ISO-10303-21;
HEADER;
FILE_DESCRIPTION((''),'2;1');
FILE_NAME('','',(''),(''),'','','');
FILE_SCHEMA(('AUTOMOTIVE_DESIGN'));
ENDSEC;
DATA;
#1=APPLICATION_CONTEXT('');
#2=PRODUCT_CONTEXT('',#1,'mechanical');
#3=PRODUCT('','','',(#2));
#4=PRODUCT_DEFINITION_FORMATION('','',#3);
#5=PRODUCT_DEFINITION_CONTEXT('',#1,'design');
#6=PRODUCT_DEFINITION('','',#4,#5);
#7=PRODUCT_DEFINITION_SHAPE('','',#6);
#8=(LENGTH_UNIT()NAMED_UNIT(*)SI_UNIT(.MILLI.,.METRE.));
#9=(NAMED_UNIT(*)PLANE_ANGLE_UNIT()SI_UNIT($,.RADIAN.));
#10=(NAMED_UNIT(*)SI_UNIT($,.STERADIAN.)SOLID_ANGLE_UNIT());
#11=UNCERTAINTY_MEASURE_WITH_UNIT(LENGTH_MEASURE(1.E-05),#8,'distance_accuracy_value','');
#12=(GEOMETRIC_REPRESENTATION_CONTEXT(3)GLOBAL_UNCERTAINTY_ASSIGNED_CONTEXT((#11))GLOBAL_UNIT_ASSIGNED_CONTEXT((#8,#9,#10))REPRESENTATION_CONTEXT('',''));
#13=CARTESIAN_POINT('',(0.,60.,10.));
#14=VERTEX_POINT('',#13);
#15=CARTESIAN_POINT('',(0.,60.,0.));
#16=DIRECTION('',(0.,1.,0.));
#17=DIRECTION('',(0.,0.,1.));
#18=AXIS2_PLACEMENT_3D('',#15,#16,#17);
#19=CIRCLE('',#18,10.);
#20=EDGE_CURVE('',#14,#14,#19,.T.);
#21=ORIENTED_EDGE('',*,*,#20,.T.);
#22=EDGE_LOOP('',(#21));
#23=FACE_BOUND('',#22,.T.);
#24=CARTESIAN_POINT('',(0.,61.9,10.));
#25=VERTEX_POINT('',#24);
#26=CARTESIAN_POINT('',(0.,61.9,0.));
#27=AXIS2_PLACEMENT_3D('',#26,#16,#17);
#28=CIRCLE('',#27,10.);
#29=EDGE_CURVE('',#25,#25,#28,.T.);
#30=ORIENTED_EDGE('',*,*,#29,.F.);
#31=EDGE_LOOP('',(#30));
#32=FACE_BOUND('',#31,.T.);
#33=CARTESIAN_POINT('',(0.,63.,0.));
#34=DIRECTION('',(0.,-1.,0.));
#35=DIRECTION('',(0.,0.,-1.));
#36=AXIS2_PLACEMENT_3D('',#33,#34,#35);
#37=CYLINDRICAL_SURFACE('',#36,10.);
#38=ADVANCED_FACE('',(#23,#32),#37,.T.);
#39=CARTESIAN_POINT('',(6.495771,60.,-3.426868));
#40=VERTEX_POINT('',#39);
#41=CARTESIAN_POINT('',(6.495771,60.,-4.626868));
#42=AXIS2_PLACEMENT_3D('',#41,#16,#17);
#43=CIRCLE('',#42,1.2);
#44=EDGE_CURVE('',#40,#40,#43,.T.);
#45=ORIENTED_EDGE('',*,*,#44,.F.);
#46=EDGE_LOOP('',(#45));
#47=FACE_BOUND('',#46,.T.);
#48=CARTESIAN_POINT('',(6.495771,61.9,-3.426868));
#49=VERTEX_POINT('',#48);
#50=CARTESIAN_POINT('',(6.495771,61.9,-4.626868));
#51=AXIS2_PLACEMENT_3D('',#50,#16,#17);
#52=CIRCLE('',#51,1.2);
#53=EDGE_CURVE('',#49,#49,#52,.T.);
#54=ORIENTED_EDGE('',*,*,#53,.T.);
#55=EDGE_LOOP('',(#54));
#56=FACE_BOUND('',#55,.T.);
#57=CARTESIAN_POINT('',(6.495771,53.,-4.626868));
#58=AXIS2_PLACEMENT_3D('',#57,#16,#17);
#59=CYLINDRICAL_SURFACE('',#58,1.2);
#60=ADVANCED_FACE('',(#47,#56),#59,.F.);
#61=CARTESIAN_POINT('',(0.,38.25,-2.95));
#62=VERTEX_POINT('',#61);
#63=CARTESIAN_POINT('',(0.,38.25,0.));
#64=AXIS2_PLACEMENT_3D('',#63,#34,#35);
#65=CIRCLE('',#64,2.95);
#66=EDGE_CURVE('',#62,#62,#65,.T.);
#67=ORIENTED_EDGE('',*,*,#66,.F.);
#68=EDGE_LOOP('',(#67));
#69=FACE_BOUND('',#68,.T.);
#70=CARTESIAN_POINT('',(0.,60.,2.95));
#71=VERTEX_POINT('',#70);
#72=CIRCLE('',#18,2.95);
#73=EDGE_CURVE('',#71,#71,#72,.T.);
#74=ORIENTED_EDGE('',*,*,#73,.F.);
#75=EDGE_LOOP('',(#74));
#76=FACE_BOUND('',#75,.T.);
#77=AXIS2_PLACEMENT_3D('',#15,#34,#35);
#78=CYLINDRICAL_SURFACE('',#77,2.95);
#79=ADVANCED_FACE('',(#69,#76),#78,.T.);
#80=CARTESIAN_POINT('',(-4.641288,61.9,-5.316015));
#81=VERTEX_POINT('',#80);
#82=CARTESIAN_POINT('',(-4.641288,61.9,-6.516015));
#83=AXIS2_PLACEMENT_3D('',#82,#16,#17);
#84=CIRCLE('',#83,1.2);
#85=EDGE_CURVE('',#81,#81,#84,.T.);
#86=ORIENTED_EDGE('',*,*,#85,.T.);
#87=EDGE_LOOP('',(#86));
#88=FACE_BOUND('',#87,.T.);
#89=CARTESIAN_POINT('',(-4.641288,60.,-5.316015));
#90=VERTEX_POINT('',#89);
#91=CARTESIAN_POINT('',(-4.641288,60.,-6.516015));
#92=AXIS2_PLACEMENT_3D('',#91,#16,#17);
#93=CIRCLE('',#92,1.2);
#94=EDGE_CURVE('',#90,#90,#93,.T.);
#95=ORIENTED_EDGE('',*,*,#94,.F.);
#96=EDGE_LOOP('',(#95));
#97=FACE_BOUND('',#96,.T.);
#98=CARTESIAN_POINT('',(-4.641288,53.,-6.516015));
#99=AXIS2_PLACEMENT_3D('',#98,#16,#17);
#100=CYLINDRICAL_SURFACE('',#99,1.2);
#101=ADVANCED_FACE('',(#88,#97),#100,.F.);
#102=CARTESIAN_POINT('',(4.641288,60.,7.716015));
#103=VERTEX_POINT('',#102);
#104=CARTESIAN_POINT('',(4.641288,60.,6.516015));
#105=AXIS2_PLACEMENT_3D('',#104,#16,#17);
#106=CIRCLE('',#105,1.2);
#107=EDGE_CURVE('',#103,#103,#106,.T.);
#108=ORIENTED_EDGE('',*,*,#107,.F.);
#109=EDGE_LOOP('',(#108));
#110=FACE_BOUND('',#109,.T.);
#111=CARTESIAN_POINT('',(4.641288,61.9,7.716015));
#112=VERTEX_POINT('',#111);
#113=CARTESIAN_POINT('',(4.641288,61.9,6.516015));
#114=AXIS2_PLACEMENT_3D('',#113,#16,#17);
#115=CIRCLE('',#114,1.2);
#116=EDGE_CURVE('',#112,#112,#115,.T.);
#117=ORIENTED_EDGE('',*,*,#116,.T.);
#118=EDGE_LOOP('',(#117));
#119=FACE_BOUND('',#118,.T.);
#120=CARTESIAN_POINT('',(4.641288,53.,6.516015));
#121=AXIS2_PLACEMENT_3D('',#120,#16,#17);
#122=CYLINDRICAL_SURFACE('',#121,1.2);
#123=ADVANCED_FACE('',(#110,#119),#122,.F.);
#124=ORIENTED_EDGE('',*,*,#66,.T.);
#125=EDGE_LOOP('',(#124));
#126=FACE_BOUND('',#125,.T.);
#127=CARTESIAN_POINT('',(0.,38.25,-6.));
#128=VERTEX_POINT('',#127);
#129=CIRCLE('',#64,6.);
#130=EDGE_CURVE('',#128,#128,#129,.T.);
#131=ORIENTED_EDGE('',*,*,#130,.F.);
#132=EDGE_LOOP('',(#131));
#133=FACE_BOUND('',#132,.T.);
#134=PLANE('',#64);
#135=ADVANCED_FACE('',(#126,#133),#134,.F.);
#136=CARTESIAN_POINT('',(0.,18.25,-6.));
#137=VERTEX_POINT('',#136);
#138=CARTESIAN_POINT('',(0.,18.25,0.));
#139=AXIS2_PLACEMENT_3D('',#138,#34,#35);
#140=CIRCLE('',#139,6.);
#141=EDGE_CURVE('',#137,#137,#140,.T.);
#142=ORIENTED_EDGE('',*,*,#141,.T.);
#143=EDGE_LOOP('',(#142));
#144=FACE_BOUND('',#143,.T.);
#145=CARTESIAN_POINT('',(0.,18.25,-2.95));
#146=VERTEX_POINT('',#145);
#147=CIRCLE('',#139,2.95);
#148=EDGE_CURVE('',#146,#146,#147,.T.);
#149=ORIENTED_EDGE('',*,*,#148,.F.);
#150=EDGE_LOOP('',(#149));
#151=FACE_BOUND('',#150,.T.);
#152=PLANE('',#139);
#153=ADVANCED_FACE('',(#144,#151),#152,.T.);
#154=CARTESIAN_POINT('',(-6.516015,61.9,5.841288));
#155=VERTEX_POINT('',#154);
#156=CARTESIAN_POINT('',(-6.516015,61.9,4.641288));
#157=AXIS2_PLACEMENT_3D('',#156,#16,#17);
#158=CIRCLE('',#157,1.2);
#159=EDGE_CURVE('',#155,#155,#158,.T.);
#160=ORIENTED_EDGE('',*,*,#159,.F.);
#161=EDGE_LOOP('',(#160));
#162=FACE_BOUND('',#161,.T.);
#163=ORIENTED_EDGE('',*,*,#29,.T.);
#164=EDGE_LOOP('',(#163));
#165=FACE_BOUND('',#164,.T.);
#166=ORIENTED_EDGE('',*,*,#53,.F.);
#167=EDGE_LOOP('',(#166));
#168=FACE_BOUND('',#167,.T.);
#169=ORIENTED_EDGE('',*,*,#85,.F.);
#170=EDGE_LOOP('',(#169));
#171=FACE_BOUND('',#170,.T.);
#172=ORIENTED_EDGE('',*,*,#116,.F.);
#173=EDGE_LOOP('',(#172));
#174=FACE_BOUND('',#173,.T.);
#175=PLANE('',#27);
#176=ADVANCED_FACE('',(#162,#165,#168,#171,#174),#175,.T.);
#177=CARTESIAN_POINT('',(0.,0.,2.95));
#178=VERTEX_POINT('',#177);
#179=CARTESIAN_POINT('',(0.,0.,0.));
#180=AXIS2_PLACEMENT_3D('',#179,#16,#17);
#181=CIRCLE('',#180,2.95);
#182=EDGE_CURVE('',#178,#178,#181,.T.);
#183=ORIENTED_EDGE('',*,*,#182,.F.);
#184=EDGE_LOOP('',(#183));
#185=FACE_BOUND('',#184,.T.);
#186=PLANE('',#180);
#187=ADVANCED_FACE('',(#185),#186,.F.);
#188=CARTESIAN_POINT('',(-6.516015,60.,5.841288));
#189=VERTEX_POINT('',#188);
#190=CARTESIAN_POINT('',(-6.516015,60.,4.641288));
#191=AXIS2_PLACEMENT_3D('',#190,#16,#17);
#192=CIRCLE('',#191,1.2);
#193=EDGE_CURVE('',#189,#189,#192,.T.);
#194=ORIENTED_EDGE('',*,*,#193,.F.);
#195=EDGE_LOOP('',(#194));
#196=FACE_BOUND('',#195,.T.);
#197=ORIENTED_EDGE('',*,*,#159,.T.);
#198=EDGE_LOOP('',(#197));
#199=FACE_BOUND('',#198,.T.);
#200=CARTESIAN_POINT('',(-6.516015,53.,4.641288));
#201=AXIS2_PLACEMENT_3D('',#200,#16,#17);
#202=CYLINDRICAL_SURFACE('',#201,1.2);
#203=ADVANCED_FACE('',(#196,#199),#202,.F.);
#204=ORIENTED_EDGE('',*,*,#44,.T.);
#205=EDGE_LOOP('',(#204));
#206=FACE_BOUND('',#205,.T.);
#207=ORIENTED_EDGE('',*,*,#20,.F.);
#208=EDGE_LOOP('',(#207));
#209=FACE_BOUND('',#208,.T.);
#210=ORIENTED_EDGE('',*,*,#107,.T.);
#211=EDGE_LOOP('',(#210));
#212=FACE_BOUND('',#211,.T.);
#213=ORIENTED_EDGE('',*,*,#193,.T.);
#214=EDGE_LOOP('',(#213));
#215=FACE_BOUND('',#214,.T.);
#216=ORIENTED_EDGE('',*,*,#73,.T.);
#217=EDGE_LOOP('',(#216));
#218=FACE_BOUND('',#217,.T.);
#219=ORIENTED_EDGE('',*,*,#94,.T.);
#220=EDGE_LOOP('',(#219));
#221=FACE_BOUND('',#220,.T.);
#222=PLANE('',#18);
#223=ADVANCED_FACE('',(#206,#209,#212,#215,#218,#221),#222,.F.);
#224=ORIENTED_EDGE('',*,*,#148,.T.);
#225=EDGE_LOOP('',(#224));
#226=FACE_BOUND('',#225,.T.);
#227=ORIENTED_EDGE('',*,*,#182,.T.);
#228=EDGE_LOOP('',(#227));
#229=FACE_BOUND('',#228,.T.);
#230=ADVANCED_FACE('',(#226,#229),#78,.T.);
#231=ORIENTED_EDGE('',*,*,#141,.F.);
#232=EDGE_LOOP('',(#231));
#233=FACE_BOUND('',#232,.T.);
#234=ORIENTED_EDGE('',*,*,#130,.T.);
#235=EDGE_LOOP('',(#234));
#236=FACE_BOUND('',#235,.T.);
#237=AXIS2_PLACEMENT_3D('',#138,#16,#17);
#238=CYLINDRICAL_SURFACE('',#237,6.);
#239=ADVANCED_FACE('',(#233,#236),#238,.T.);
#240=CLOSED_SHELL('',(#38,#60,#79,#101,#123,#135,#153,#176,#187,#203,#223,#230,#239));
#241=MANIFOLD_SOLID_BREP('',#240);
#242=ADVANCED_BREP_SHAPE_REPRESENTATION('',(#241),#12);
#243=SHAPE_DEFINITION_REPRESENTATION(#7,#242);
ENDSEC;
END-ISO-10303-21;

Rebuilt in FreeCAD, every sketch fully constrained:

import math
import FreeCAD as App
import Part
import Sketcher

V = App.Vector

doc = App.newDocument("Part")
body = doc.addObject("PartDesign::Body", "Body")

# Sketch on XZ plane
sketch1 = body.newObject("Sketcher::SketchObject", "Sketch")
sketch1.AttachmentSupport = (doc.getObject("XZ_Plane"), [""])
sketch1.MapMode = "FlatFace"
sketch1.addGeometry(Part.Circle(V(0, 0, 0), V(0, 0, 1), 3), False)
sketch1.addConstraint(Sketcher.Constraint("Coincident", 0, 3, -1, 1))
sketch1.addConstraint(Sketcher.Constraint("Diameter", 0, 5.9))
pad1 = body.newObject("PartDesign::Pad", "Pad")
pad1.Profile = sketch1
pad1.Length = 60
pad1.Reversed = True

# Sketch on XZ plane
sketch2 = body.newObject("Sketcher::SketchObject", "Sketch001")
sketch2.AttachmentSupport = (doc.getObject("XZ_Plane"), [""])
sketch2.MapMode = "FlatFace"
sketch2.AttachmentOffset = App.Placement(V(0, 0, -60), App.Rotation())
sketch2.addGeometry(Part.Circle(V(0, 0, 0), V(0, 0, 1), 10), False)
sketch2.addConstraint(Sketcher.Constraint("Coincident", 0, 3, -1, 1))
sketch2.addConstraint(Sketcher.Constraint("Diameter", 0, 20.0))
pad2 = body.newObject("PartDesign::Pad", "Pad001")
pad2.Profile = sketch2
pad2.Length = 3
pad2.Reversed = True

# Sketch on XZ plane
sketch3 = body.newObject("Sketcher::SketchObject", "Sketch002")
sketch3.AttachmentSupport = (doc.getObject("XZ_Plane"), [""])
sketch3.MapMode = "FlatFace"
sketch3.AttachmentOffset = App.Placement(V(0, 0, -63), App.Rotation())
sketch3.addGeometry(Part.ArcOfCircle(Part.Circle(V(-6.5, 4.6, 0), V(0, 0, 1), 1.2), math.radians(145), math.radians(325)), False)
sketch3.addGeometry(Part.ArcOfCircle(Part.Circle(V(-6.5, 4.6, 0), V(0, 0, 1), 1.2), math.radians(0), math.radians(145)), False)
sketch3.addGeometry(Part.ArcOfCircle(Part.Circle(V(-6.5, 4.6, 0), V(0, 0, 1), 1.2), math.radians(-35), math.radians(0)), False)
sketch3.addGeometry(Part.ArcOfCircle(Part.Circle(V(-4.6, -6.5, 0), V(0, 0, 1), 1.2), math.radians(-125), math.radians(0)), False)
sketch3.addGeometry(Part.ArcOfCircle(Part.Circle(V(-4.6, -6.5, 0), V(0, 0, 1), 1.2), math.radians(55), math.radians(235)), False)
sketch3.addGeometry(Part.ArcOfCircle(Part.Circle(V(-4.6, -6.5, 0), V(0, 0, 1), 1.2), math.radians(0), math.radians(55)), False)
sketch3.addGeometry(Part.ArcOfCircle(Part.Circle(V(4.6, 6.5, 0), V(0, 0, 1), 1.2), math.radians(55), math.radians(235)), False)
sketch3.addGeometry(Part.ArcOfCircle(Part.Circle(V(4.6, 6.5, 0), V(0, 0, 1), 1.2), math.radians(0), math.radians(55)), False)
sketch3.addGeometry(Part.ArcOfCircle(Part.Circle(V(4.6, 6.5, 0), V(0, 0, 1), 1.2), math.radians(-125), math.radians(0)), False)
sketch3.addGeometry(Part.Circle(V(6.5, -4.6, 0), V(0, 0, 1), 1.2), False)
sketch3.addConstraint(Sketcher.Constraint("Tangent", 0, 1, 1, 2))
sketch3.addConstraint(Sketcher.Constraint("Tangent", 1, 1, 2, 2))
sketch3.addConstraint(Sketcher.Constraint("Tangent", 2, 1, 0, 2))
sketch3.addConstraint(Sketcher.Constraint("Tangent", 3, 1, 4, 2))
sketch3.addConstraint(Sketcher.Constraint("Tangent", 4, 1, 5, 2))
sketch3.addConstraint(Sketcher.Constraint("Tangent", 5, 1, 3, 2))
sketch3.addConstraint(Sketcher.Constraint("Tangent", 6, 1, 7, 2))
sketch3.addConstraint(Sketcher.Constraint("Tangent", 7, 1, 8, 2))
sketch3.addConstraint(Sketcher.Constraint("Tangent", 8, 1, 6, 2))
sketch3.addConstraint(Sketcher.Constraint("Equal", 2, 3))
sketch3.addConstraint(Sketcher.Constraint("Equal", 5, 6))
sketch3.addConstraint(Sketcher.Constraint("Equal", 8, 9))
sketch3.addConstraint(Sketcher.Constraint("Symmetric", 3, 3, 6, 3, -1, 1))
sketch3.addConstraint(Sketcher.Constraint("Horizontal", 2, 3, 1, 1))
sketch3.addConstraint(Sketcher.Constraint("Horizontal", 4, 3, 5, 1))
sketch3.addConstraint(Sketcher.Constraint("Horizontal", 8, 3, 7, 1))
sketch3.addConstraint(Sketcher.Constraint("Diameter", 9, 2.4))
sketch3.addConstraint(Sketcher.Constraint("DistanceX", -1, 1, 9, 3, 6.495771))
sketch3.addConstraint(Sketcher.Constraint("DistanceY", 9, 3, -1, 1, 4.626868))
sketch3.addConstraint(Sketcher.Constraint("DistanceY", -1, 1, 0, 1, 5.337481))
sketch3.addConstraint(Sketcher.Constraint("DistanceX", 3, 1, -1, 1, 5.337481))
sketch3.addConstraint(Sketcher.Constraint("DistanceX", -1, 1, 6, 1, 5.337481))
sketch3.addConstraint(Sketcher.Constraint("DistanceY", 3, 3, 6, 3, 13.03203))
sketch3.addConstraint(Sketcher.Constraint("DistanceX", 4, 3, 9, 3, 11.137059))
sketch3.addConstraint(Sketcher.Constraint("DistanceX", 0, 1, 3, 3, 2.85213))
sketch3.addConstraint(Sketcher.Constraint("DistanceX", 2, 1, 3, 1, 0.201132))
sketch3.addConstraint(Sketcher.Constraint("DistanceX", 2, 1, 4, 1, 1.593518))
sketch3.addConstraint(Sketcher.Constraint("DistanceY", 1, 1, 6, 1, 2.85213))
sketch3.addConstraint(Sketcher.Constraint("DistanceX", -1, 1, 8, 1, 3.945094))
pocket1 = body.newObject("PartDesign::Pocket", "Pocket")
pocket1.Profile = sketch3
pocket1.Length = 10
pocket1.Reversed = True

# Sketch on XZ plane
sketch4 = body.newObject("Sketcher::SketchObject", "Sketch003")
sketch4.AttachmentSupport = (doc.getObject("XZ_Plane"), [""])
sketch4.MapMode = "FlatFace"
sketch4.AttachmentOffset = App.Placement(V(0, 0, -63), App.Rotation())
sketch4.addGeometry(Part.Circle(V(0, 0, 0), V(0, 0, 1), 10), False)
sketch4.addGeometry(Part.Circle(V(-4.6, -6.5, 0), V(0, 0, 1), 1.2), False)
sketch4.addGeometry(Part.Circle(V(-6.5, 4.6, 0), V(0, 0, 1), 1.2), False)
sketch4.addGeometry(Part.Circle(V(6.5, -4.6, 0), V(0, 0, 1), 1.2), False)
sketch4.addGeometry(Part.Circle(V(4.6, 6.5, 0), V(0, 0, 1), 1.2), False)
sketch4.addConstraint(Sketcher.Constraint("Coincident", 0, 3, -1, 1))
sketch4.addConstraint(Sketcher.Constraint("Equal", 1, 2))
sketch4.addConstraint(Sketcher.Constraint("Equal", 2, 3))
sketch4.addConstraint(Sketcher.Constraint("Equal", 3, 4))
sketch4.addConstraint(Sketcher.Constraint("Symmetric", 1, 3, 4, 3, -1, 1))
sketch4.addConstraint(Sketcher.Constraint("Diameter", 0, 20.0))
sketch4.addConstraint(Sketcher.Constraint("Diameter", 1, 2.4))
sketch4.addConstraint(Sketcher.Constraint("DistanceX", -1, 1, 3, 3, 6.495771))
sketch4.addConstraint(Sketcher.Constraint("DistanceY", 3, 3, -1, 1, 4.626868))
sketch4.addConstraint(Sketcher.Constraint("DistanceX", 1, 3, 3, 3, 11.137059))
sketch4.addConstraint(Sketcher.Constraint("DistanceY", 1, 3, 4, 3, 13.03203))
sketch4.addConstraint(Sketcher.Constraint("DistanceX", 2, 3, -1, 1, 6.516015))
sketch4.addConstraint(Sketcher.Constraint("DistanceY", -1, 1, 2, 3, 4.641288))
pocket2 = body.newObject("PartDesign::Pocket", "Pocket001")
pocket2.Profile = sketch4
pocket2.Length = 1.1
pocket2.Reversed = True

# Sketch on XZ plane
sketch5 = body.newObject("Sketcher::SketchObject", "Sketch004")
sketch5.AttachmentSupport = (doc.getObject("XZ_Plane"), [""])
sketch5.MapMode = "FlatFace"
sketch5.AttachmentOffset = App.Placement(V(0, 0, -38.25), App.Rotation())
sketch5.addGeometry(Part.Circle(V(0, 0, 0), V(0, 0, 1), 6), False)
sketch5.addConstraint(Sketcher.Constraint("Coincident", 0, 3, -1, 1))
sketch5.addConstraint(Sketcher.Constraint("Diameter", 0, 12.0))
pad3 = body.newObject("PartDesign::Pad", "Pad002")
pad3.Profile = sketch5
pad3.Length = 20

doc.recompute()
